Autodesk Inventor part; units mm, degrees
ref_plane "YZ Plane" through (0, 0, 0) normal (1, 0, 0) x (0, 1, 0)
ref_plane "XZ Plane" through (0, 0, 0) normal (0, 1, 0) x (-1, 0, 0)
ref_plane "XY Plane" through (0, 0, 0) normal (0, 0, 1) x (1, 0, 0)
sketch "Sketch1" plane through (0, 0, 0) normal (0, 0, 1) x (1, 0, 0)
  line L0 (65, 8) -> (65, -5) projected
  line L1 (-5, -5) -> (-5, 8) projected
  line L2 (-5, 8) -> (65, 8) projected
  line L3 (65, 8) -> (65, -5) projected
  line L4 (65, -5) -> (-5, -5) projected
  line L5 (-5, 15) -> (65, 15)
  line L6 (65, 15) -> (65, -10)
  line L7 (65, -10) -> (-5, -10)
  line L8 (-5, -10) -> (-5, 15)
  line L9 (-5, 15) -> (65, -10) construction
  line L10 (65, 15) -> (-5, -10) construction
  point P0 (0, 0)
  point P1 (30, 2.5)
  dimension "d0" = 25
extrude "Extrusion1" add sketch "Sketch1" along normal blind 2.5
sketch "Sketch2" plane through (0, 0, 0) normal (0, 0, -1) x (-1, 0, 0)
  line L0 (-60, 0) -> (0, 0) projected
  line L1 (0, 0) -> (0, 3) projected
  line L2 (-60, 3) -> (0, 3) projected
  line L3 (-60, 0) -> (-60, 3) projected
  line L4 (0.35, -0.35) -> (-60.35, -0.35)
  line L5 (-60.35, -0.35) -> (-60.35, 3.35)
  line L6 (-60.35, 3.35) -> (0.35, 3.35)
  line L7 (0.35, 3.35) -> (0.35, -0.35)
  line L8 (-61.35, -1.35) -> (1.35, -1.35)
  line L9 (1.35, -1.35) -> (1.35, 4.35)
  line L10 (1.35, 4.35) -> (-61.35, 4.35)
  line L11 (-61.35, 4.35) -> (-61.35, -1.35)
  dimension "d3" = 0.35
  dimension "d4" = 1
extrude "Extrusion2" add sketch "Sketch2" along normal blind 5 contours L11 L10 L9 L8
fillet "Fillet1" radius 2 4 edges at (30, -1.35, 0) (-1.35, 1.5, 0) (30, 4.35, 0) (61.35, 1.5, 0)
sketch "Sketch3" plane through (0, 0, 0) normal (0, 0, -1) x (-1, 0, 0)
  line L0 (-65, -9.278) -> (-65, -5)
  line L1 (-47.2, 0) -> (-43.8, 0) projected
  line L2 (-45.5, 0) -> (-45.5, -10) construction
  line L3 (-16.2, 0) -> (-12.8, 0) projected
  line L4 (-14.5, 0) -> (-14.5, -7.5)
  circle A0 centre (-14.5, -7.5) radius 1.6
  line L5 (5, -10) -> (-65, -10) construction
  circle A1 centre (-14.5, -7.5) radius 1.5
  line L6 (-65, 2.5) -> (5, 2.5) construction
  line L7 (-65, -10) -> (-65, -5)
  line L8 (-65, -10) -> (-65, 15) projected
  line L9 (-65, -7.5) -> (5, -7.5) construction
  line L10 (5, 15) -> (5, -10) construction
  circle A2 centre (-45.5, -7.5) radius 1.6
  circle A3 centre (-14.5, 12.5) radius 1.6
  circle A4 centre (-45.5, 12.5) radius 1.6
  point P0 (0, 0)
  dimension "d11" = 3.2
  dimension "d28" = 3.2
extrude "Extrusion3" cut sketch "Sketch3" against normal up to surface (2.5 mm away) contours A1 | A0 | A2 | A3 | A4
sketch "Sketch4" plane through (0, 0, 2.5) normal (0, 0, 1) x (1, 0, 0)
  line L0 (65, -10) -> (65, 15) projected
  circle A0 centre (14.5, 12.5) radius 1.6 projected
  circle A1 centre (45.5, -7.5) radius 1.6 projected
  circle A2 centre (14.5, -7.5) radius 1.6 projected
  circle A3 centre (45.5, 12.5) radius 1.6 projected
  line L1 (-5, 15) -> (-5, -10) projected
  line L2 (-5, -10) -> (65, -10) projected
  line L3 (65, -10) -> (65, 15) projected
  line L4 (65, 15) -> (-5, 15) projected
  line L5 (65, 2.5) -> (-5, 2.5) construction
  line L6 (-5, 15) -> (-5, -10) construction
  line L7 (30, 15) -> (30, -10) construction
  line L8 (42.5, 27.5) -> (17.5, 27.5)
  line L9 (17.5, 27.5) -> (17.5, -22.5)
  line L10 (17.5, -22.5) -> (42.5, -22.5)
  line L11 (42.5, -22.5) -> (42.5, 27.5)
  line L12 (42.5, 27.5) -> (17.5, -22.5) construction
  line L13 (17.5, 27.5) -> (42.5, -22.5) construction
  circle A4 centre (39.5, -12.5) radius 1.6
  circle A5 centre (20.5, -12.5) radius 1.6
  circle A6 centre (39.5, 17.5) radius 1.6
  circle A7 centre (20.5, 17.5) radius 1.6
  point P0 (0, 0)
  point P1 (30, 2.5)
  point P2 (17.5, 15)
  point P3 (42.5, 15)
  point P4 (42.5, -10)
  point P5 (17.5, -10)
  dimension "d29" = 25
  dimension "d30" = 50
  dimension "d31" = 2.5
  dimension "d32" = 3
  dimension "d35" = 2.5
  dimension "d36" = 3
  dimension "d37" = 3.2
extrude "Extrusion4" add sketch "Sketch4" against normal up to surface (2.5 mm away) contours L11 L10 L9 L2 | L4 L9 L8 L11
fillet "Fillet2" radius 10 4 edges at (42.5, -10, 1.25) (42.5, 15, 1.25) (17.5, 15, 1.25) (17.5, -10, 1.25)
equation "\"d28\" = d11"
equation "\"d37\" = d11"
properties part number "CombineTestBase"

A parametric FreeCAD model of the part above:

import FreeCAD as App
import Part
import Sketcher
Q = App.Units.Quantity


def edges_at(feature, points):
    """Names of the edges that pass closest to the given points."""
    edges = feature.Shape.Edges
    near = lambda p: min(range(len(edges)), key=lambda i: edges[i].distToShape(Part.Vertex(*p))[0])
    return sorted({f"Edge{near(p) + 1}" for p in points})


def add_polygon(sketch, points):
    """Adds a closed chain of lines whose ends are joined by coincident constraints."""
    first, n = sketch.GeometryCount, len(points)
    for a, b in zip(points, points[1:] + points[:1]):
        sketch.addGeometry(Part.LineSegment(App.Vector(*a, 0), App.Vector(*b, 0)), False)
    for i in range(n):
        sketch.addConstraint(Sketcher.Constraint("Coincident", first + i, 2, first + (i + 1) % n, 1))

doc = App.newDocument("Part")
params = doc.addObject("Spreadsheet::Sheet", "Params")
for row, (alias, value) in enumerate([
    ("sketch1_height", "25 mm"),
    ("sketch1_width", "70 mm"),
    ("pad1_length", "2.5 mm"),
    ("sketch2_width", "62.7 mm"),
    ("sketch2_height", "5.7 mm"),
    ("pad2_length", "5 mm"),
    ("fillet_radius", "2 mm"),
    ("sketch3_diameter", "3.2 mm"),
    ("pocket1_length", "2.5 mm"),
    ("sketch4_diameter", "3.2 mm"),
    ("sketch4_width", "25 mm"),
    ("sketch4_height", "12.5 mm"),
    ("pad3_length", "2.5 mm"),
    ("fillet2_radius", "10 mm"),
], start=1):
    params.set(f"A{row}", alias)
    params.set(f"B{row}", "=" + value)
    params.setAlias(f"B{row}", alias)

body = doc.addObject("PartDesign::Body", "Body")

sketch1 = doc.addObject("Sketcher::SketchObject", "Sketch")
body.addObject(sketch1)
sketch1.AttachmentSupport = (doc.XY_Plane, [""])
sketch1.MapMode = "FlatFace"
add_polygon(sketch1, [(65, 15), (-5, 15), (-5, -10), (65, -10)])
sketch1.addConstraint([
    Sketcher.Constraint("Horizontal", 0),
    Sketcher.Constraint("Vertical", 1),
    Sketcher.Constraint("Horizontal", 2),
    Sketcher.Constraint("Vertical", 3),
    Sketcher.Constraint("DistanceY", 1, 2, 1, 1, Q("25 mm")),
    Sketcher.Constraint("DistanceX", 0, 2, 0, 1, Q("70 mm")),
    Sketcher.Constraint("DistanceX", 0, 2, -1, 1, Q("5 mm")),
    Sketcher.Constraint("DistanceY", -1, 1, 0, 2, Q("15 mm")),
])
sketch1.setExpression("Constraints[8]", "Params.sketch1_height")
sketch1.setExpression("Constraints[9]", "Params.sketch1_width")
pad1 = doc.addObject("PartDesign::Pad", "Pad")
body.addObject(pad1)
pad1.Profile = sketch1
pad1.setExpression("Length", "Params.pad1_length")

sketch2 = doc.addObject("Sketcher::SketchObject", "Sketch001")
body.addObject(sketch2)
sketch2.AttachmentSupport = (doc.XY_Plane, [""])
sketch2.MapMode = "FlatFace"
add_polygon(sketch2, [(61.35, 4.35), (61.35, -1.35), (-1.35, -1.35), (-1.35, 4.35)])
add_polygon(sketch2, [(-0.35, 3.35), (-0.35, -0.35), (60.35, -0.35), (60.35, 3.35)])
sketch2.addConstraint([
    Sketcher.Constraint("Vertical", 0),
    Sketcher.Constraint("Horizontal", 1),
    Sketcher.Constraint("Vertical", 2),
    Sketcher.Constraint("Horizontal", 3),
    Sketcher.Constraint("Vertical", 4),
    Sketcher.Constraint("Horizontal", 5),
    Sketcher.Constraint("Vertical", 6),
    Sketcher.Constraint("Horizontal", 7),
    Sketcher.Constraint("DistanceX", 1, 2, 4, 2, Q("1 mm")),
    Sketcher.Constraint("DistanceY", 1, 2, 4, 2, Q("1 mm")),
    Sketcher.Constraint("DistanceX", 5, 2, 0, 2, Q("1 mm")),
    Sketcher.Constraint("DistanceY", 6, 2, 3, 2, Q("1 mm")),
    Sketcher.Constraint("DistanceX", 4, 2, -1, 1, Q("0.35 mm")),
    Sketcher.Constraint("DistanceY", 4, 2, -1, 1, Q("0.35 mm")),
    Sketcher.Constraint("DistanceX", 1, 2, 1, 1, Q("62.7 mm")),
    Sketcher.Constraint("DistanceY", 0, 2, 0, 1, Q("5.7 mm")),
])
sketch2.setExpression("Constraints[22]", "Params.sketch2_width")
sketch2.setExpression("Constraints[23]", "Params.sketch2_height")
pad2 = doc.addObject("PartDesign::Pad", "Pad001")
body.addObject(pad2)
pad2.Profile = sketch2
pad2.setExpression("Length", "Params.pad2_length")
pad2.Reversed = True
doc.recompute()

fillet = doc.addObject("PartDesign::Fillet", "Fillet")
body.addObject(fillet)
fillet.Base = (pad2, edges_at(pad2, [
    (30, -1.35, 0),
    (-1.35, 1.5, 0),
    (30, 4.35, 0),
    (61.35, 1.5, 0),
]))
fillet.setExpression("Radius", "Params.fillet_radius")

sketch3 = doc.addObject("Sketcher::SketchObject", "Sketch002")
body.addObject(sketch3)
sketch3.AttachmentSupport = (doc.XY_Plane, [""])
sketch3.MapMode = "FlatFace"
sketch3.addGeometry([
    Part.Circle(App.Vector(14.5, -7.5, 0), App.Vector(0, 0, 1), 1.6),
    Part.Circle(App.Vector(45.5, -7.5, 0), App.Vector(0, 0, 1), 1.6),
    Part.Circle(App.Vector(14.5, 12.5, 0), App.Vector(0, 0, 1), 1.6),
    Part.Circle(App.Vector(45.5, 12.5, 0), App.Vector(0, 0, 1), 1.6),
], False)
sketch3.addConstraint([
    Sketcher.Constraint("Equal", 0, 1),
    Sketcher.Constraint("Equal", 1, 2),
    Sketcher.Constraint("Equal", 2, 3),
    Sketcher.Constraint("Horizontal", 0, 3, 1, 3),
    Sketcher.Constraint("Horizontal", 2, 3, 3, 3),
    Sketcher.Constraint("Vertical", 0, 3, 2, 3),
    Sketcher.Constraint("Vertical", 1, 3, 3, 3),
    Sketcher.Constraint("Diameter", 0, Q("3.2 mm")),
    Sketcher.Constraint("DistanceX", 0, 3, 1, 3, Q("31 mm")),
    Sketcher.Constraint("DistanceY", 0, 3, 2, 3, Q("20 mm")),
    Sketcher.Constraint("DistanceX", -1, 1, 0, 3, Q("14.5 mm")),
    Sketcher.Constraint("DistanceY", 0, 3, -1, 1, Q("7.5 mm")),
])
sketch3.setExpression("Constraints[7]", "Params.sketch3_diameter")
pocket1 = doc.addObject("PartDesign::Pocket", "Pocket")
body.addObject(pocket1)
pocket1.Profile = sketch3
pocket1.setExpression("Length", "Params.pocket1_length")
pocket1.Reversed = True

sketch4 = doc.addObject("Sketcher::SketchObject", "Sketch003")
body.addObject(sketch4)
sketch4.AttachmentSupport = (doc.XY_Plane, [""])
sketch4.MapMode = "FlatFace"
sketch4.AttachmentOffset = App.Placement(App.Vector(0, 0, 2.5), App.Rotation())
add_polygon(sketch4, [(42.5, -22.5), (42.5, -10), (17.5, -10), (17.5, -22.5)])
sketch4.addGeometry(Part.Circle(App.Vector(20.5, -12.5, 0), App.Vector(0, 0, 1), 1.6), False)
sketch4.addGeometry(Part.Circle(App.Vector(39.5, -12.5, 0), App.Vector(0, 0, 1), 1.6), False)
add_polygon(sketch4, [(17.5, 15), (42.5, 15), (42.5, 27.5), (17.5, 27.5)])
sketch4.addGeometry(Part.Circle(App.Vector(20.5, 17.5, 0), App.Vector(0, 0, 1), 1.6), False)
sketch4.addGeometry(Part.Circle(App.Vector(39.5, 17.5, 0), App.Vector(0, 0, 1), 1.6), False)
sketch4.addConstraint([
    Sketcher.Constraint("Vertical", 0),
    Sketcher.Constraint("Horizontal", 1),
    Sketcher.Constraint("Vertical", 2),
    Sketcher.Constraint("Horizontal", 3),
    Sketcher.Constraint("Horizontal", 6),
    Sketcher.Constraint("Vertical", 7),
    Sketcher.Constraint("Horizontal", 8),
    Sketcher.Constraint("Vertical", 9),
    Sketcher.Constraint("Equal", 4, 5),
    Sketcher.Constraint("Equal", 5, 10),
    Sketcher.Constraint("Equal", 10, 11),
    Sketcher.Constraint("Horizontal", 4, 3, 5, 3),
    Sketcher.Constraint("Horizontal", 10, 3, 11, 3),
    Sketcher.Constraint("Vertical", 4, 3, 10, 3),
    Sketcher.Constraint("Vertical", 5, 3, 11, 3),
    Sketcher.Constraint("Vertical", 3, 2, 6, 2),
    Sketcher.Constraint("Vertical", 2, 2, 8, 2),
    Sketcher.Constraint("Equal", 2, 7),
    Sketcher.Constraint("Diameter", 4, Q("3.2 mm")),
    Sketcher.Constraint("DistanceX", 1, 2, 1, 1, Q("25 mm")),
    Sketcher.Constraint("DistanceX", 5, 3, 0, 2, Q("3 mm")),
    Sketcher.Constraint("DistanceX", 1, 2, 4, 3, Q("3 mm")),
    Sketcher.Constraint("DistanceY", 0, 2, 6, 2, Q("25 mm")),
    Sketcher.Constraint("DistanceY", 5, 3, 0, 2, Q("2.5 mm")),
    Sketcher.Constraint("DistanceY", 6, 2, 11, 3, Q("2.5 mm")),
    Sketcher.Constraint("DistanceY", 0, 1, 0, 2, Q("12.5 mm")),
    Sketcher.Constraint("DistanceY", 0, 2, -1, 1, Q("10 mm")),
    Sketcher.Constraint("DistanceX", -1, 1, 4, 3, Q("20.5 mm")),
])
sketch4.setExpression("Constraints[26]", "Params.sketch4_diameter")
sketch4.setExpression("Constraints[27]", "Params.sketch4_width")
sketch4.setExpression("Constraints[33]", "Params.sketch4_height")
pad3 = doc.addObject("PartDesign::Pad", "Pad002")
body.addObject(pad3)
pad3.Profile = sketch4
pad3.setExpression("Length", "Params.pad3_length")
pad3.Reversed = True
doc.recompute()

fillet2 = doc.addObject("PartDesign::Fillet", "Fillet001")
body.addObject(fillet2)
fillet2.Base = (pad3, edges_at(pad3, [
    (42.5, -10, 1.25),
    (42.5, 15, 1.25),
    (17.5, 15, 1.25),
    (17.5, -10, 1.25),
]))
fillet2.setExpression("Radius", "Params.fillet2_radius")

doc.recompute()
